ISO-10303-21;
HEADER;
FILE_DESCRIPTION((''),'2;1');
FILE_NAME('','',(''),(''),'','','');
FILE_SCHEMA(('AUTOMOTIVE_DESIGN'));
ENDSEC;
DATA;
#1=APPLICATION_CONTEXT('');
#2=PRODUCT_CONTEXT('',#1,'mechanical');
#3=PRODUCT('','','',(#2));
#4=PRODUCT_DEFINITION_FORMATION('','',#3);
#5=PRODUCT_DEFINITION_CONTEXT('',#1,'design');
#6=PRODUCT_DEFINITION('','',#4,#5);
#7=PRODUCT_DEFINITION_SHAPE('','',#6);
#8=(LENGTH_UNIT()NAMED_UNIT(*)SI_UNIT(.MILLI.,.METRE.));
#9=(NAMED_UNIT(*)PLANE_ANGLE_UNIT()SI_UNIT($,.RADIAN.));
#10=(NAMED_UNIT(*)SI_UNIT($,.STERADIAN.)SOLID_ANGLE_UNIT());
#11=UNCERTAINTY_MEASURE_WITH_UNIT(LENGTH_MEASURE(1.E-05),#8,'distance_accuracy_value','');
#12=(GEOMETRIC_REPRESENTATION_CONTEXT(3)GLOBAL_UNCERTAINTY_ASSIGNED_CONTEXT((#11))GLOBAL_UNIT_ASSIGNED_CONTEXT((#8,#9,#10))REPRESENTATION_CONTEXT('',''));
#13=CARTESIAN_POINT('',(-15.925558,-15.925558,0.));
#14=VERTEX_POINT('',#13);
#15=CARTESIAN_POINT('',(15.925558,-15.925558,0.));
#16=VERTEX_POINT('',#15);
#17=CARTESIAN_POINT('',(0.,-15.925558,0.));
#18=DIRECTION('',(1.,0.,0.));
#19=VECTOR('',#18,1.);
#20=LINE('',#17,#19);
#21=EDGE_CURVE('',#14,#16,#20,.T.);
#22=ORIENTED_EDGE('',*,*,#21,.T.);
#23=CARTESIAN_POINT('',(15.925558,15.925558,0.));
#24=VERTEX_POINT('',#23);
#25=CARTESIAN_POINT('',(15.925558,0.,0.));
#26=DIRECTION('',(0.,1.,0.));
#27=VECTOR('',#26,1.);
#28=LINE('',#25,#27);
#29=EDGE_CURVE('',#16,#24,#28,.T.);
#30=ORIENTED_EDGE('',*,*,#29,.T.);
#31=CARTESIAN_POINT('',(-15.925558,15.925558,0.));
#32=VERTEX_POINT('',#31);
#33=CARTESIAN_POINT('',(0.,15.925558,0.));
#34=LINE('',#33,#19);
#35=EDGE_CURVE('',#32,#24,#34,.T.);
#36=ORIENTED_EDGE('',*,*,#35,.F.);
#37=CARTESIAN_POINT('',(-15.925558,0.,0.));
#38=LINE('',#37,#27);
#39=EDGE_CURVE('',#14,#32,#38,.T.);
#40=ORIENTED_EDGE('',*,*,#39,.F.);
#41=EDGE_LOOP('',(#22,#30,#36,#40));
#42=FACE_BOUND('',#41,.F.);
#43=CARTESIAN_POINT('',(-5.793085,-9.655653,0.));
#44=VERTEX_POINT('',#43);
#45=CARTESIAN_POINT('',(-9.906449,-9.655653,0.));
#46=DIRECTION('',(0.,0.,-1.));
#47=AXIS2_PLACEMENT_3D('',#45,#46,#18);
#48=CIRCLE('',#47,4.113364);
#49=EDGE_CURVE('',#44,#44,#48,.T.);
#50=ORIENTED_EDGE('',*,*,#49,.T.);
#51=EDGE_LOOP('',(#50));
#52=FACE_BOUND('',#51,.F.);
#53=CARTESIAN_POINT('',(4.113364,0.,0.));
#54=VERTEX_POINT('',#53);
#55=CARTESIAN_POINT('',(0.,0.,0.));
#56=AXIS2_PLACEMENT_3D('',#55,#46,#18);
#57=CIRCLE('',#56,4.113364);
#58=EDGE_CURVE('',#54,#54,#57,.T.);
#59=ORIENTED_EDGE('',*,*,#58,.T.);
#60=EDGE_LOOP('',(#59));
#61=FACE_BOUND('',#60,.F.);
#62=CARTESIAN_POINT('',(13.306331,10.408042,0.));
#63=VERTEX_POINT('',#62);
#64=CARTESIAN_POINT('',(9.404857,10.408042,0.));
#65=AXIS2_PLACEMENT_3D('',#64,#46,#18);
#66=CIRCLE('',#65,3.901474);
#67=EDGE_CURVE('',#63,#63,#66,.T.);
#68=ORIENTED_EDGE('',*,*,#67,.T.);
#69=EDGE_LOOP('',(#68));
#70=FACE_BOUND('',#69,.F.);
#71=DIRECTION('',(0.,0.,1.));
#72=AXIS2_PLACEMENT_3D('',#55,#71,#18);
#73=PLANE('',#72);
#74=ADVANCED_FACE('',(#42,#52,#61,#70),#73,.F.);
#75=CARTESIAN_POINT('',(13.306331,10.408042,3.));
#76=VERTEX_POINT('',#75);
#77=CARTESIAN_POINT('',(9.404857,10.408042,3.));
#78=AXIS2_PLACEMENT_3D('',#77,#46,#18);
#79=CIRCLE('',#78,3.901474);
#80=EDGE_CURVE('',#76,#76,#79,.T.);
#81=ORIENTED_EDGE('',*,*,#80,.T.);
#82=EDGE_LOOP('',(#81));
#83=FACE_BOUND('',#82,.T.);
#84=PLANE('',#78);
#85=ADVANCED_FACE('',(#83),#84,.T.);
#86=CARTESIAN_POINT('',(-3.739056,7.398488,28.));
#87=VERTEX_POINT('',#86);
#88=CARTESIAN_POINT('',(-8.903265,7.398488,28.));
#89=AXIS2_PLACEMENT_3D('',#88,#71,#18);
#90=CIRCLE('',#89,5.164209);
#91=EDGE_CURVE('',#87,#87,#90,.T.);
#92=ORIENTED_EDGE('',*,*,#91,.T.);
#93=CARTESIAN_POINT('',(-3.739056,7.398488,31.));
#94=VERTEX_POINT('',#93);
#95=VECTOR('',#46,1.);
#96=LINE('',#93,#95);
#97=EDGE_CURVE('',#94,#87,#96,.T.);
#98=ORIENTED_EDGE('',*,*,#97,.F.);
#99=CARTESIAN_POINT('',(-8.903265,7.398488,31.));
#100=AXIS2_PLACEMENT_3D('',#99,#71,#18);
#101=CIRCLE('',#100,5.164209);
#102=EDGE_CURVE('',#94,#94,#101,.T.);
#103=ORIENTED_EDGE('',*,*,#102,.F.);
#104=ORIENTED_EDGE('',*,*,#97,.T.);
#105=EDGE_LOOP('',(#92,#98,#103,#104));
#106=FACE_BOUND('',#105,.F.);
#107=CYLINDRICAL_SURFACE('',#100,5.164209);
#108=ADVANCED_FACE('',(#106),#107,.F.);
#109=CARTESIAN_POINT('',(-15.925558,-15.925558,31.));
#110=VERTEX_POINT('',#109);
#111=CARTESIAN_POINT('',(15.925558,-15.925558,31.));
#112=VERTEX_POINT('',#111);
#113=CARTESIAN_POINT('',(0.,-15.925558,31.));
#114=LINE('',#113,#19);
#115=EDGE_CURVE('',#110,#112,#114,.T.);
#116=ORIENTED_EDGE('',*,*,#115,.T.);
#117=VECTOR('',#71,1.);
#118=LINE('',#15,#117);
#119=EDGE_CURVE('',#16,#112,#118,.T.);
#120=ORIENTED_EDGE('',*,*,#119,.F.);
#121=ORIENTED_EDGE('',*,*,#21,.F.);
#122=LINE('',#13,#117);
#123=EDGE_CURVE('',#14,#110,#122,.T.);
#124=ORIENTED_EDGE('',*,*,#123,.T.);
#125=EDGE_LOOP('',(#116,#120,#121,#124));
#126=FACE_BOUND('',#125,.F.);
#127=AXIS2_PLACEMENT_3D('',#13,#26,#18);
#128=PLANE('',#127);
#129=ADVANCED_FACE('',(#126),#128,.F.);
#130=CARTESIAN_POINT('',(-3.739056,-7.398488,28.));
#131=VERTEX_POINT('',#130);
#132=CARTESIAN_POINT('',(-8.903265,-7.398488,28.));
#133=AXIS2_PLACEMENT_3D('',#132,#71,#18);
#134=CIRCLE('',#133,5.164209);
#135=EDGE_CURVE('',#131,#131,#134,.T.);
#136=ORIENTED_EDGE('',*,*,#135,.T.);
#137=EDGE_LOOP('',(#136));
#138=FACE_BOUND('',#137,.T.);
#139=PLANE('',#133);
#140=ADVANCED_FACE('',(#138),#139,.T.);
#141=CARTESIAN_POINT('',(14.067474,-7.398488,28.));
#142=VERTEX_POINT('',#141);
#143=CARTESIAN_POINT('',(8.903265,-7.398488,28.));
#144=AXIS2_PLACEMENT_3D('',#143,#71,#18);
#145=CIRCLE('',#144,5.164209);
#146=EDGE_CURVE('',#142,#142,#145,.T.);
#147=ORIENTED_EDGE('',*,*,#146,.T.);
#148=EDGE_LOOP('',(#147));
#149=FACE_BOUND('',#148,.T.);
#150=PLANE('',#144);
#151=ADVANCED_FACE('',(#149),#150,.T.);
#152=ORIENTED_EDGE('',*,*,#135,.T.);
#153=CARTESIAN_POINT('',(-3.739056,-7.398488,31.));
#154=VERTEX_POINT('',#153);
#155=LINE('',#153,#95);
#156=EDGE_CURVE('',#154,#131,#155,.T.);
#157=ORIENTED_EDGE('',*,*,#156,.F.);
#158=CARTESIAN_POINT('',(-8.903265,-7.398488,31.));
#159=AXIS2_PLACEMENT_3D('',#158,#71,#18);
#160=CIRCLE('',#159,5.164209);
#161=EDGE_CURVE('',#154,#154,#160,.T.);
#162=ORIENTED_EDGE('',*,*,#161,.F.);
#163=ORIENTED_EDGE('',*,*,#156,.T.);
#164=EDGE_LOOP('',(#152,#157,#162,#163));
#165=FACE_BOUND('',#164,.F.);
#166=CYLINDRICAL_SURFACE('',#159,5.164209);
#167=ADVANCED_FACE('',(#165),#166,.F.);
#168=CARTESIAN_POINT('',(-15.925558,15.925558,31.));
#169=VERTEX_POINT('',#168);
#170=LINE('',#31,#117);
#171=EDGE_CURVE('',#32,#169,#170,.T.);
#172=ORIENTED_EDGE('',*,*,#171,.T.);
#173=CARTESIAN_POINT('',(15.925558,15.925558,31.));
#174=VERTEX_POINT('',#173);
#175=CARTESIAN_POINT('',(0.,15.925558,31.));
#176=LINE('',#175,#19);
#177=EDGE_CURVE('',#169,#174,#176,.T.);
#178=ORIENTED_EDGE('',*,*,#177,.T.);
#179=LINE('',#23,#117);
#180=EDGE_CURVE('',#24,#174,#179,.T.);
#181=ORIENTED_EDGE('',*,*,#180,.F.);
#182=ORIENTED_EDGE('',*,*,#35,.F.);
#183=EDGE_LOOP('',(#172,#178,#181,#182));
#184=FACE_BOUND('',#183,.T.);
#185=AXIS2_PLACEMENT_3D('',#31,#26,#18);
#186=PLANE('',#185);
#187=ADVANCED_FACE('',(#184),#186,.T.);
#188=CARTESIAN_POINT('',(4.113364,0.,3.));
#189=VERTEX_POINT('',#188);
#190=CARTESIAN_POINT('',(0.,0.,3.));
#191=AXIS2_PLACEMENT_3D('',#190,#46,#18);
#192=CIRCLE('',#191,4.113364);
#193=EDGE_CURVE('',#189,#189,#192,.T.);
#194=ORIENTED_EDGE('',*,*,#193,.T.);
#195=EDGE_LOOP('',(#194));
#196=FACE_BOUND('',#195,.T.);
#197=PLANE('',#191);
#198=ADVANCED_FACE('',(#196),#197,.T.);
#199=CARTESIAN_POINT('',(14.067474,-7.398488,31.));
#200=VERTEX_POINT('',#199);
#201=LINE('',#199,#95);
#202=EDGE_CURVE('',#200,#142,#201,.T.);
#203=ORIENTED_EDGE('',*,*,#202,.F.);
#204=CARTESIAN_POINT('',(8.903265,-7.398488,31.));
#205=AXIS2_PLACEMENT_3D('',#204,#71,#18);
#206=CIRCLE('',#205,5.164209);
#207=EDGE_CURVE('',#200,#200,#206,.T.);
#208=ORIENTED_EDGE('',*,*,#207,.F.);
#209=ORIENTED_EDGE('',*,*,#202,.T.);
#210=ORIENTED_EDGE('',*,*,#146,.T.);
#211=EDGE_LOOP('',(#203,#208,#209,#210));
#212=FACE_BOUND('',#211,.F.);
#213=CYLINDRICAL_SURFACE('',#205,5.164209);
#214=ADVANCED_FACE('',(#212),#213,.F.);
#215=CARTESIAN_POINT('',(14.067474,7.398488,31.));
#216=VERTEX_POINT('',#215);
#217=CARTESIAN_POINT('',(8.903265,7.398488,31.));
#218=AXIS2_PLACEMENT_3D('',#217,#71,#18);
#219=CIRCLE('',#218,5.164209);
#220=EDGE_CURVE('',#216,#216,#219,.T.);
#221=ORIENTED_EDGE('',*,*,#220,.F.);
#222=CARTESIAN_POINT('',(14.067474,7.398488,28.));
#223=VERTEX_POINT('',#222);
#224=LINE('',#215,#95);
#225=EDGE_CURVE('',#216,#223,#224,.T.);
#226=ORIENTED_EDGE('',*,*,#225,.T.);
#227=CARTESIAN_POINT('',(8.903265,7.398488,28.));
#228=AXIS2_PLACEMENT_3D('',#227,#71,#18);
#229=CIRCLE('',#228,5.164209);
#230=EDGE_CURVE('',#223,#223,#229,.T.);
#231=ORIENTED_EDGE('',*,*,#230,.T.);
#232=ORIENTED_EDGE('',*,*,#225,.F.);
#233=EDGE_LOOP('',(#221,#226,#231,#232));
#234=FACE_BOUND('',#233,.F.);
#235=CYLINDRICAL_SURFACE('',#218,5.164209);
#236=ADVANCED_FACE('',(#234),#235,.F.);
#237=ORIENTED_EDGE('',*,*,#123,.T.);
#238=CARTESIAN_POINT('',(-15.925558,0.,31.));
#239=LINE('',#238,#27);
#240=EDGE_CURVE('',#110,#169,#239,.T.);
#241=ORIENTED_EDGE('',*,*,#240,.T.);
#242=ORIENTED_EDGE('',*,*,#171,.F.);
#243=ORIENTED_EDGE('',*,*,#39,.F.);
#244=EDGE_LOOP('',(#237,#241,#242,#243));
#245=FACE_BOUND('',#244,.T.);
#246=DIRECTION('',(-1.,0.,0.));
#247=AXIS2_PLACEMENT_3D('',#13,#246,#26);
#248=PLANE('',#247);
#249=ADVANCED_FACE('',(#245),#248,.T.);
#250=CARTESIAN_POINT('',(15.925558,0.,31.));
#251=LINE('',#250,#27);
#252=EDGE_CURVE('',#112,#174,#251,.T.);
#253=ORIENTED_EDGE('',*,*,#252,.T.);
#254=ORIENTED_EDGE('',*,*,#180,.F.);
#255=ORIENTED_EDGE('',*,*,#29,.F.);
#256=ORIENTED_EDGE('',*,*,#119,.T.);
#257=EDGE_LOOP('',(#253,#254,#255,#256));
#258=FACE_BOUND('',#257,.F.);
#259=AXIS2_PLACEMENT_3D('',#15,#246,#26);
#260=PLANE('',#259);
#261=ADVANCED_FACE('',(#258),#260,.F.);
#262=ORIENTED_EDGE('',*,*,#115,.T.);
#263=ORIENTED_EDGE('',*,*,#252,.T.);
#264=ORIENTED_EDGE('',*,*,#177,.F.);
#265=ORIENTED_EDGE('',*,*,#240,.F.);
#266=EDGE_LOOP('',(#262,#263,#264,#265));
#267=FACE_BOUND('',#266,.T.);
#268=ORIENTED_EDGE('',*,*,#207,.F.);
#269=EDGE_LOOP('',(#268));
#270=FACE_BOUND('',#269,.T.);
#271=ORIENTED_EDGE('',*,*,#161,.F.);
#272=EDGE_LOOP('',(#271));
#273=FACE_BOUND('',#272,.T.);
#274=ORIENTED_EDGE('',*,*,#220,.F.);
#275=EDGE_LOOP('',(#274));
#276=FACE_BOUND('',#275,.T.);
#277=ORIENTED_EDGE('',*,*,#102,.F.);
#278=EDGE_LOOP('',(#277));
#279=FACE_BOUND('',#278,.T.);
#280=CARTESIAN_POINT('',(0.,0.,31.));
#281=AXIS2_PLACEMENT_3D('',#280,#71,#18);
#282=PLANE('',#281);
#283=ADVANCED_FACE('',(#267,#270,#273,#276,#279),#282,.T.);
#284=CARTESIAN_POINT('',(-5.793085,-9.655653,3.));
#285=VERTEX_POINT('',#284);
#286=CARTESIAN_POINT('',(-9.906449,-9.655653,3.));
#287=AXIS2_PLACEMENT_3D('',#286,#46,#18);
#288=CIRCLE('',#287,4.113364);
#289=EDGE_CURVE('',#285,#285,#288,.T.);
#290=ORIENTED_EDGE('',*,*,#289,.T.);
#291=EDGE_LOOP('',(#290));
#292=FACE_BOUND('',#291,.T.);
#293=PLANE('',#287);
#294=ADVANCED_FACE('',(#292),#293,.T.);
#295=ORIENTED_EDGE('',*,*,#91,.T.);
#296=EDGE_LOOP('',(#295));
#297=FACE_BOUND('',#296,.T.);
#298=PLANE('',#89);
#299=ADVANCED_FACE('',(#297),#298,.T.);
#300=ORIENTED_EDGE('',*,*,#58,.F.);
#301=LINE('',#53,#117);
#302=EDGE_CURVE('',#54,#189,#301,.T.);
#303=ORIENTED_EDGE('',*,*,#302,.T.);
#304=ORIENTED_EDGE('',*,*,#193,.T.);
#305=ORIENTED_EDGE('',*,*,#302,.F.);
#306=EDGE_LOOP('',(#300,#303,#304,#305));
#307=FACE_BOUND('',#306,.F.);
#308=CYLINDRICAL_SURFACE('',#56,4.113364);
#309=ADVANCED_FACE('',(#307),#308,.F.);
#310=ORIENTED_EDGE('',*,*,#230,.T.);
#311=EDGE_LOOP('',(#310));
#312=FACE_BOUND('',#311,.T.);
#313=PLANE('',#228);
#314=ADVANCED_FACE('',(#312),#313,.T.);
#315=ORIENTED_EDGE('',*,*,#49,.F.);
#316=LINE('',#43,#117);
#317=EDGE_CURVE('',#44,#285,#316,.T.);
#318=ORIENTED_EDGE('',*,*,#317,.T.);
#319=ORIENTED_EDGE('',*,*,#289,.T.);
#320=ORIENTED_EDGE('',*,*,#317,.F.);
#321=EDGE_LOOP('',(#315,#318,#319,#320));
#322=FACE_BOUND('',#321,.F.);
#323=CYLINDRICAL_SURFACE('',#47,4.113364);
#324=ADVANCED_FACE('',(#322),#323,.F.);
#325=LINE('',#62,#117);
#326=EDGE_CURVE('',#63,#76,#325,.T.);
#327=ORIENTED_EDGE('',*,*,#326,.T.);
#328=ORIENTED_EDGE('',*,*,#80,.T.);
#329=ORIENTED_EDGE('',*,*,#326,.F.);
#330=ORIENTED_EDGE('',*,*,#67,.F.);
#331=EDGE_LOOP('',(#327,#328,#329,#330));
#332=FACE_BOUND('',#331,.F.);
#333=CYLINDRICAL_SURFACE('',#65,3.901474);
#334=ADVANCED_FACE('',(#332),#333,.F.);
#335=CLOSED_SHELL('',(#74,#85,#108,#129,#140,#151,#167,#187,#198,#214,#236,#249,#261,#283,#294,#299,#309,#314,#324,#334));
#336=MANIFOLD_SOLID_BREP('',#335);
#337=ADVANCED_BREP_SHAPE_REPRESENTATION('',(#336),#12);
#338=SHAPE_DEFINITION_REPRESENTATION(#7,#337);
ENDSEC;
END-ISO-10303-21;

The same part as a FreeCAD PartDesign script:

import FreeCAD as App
import Part
import Sketcher

V = App.Vector

doc = App.newDocument("Part")
body = doc.addObject("PartDesign::Body", "Body")

# Sketch on XY plane
sketch1 = body.newObject("Sketcher::SketchObject", "Sketch")
sketch1.AttachmentSupport = (doc.getObject("XY_Plane"), [""])
sketch1.MapMode = "FlatFace"
sketch1.addGeometry([
    Part.LineSegment(V(-16, 16, 0), V(-16, -16, 0)),
    Part.LineSegment(V(-16, -16, 0), V(16, -16, 0)),
    Part.LineSegment(V(16, -16, 0), V(16, 16, 0)),
    Part.LineSegment(V(16, 16, 0), V(-16, 16, 0)),
], False)
sketch1.addConstraint([
    Sketcher.Constraint("Coincident", 0, 2, 1, 1),
    Sketcher.Constraint("Coincident", 1, 2, 2, 1),
    Sketcher.Constraint("Coincident", 2, 2, 3, 1),
    Sketcher.Constraint("Coincident", 3, 2, 0, 1),
    Sketcher.Constraint("Vertical", 0),
    Sketcher.Constraint("Horizontal", 1),
    Sketcher.Constraint("Vertical", 2),
    Sketcher.Constraint("Horizontal", 3),
    Sketcher.Constraint("Symmetric", 0, 2, 2, 2, -1, 1),
    Sketcher.Constraint("Equal", 3, 0),
    Sketcher.Constraint("DistanceX", 1, 1, 1, 2, 31.851116),
])
pad1 = body.newObject("PartDesign::Pad", "Pad")
pad1.Profile = sketch1
pad1.Length = 31

# Sketch on XY plane
sketch2 = body.newObject("Sketcher::SketchObject", "Sketch001")
sketch2.AttachmentSupport = (doc.getObject("XY_Plane"), [""])
sketch2.MapMode = "FlatFace"
sketch2.AttachmentOffset = App.Placement(V(0, 0, 31), App.Rotation())
sketch2.addGeometry([
    Part.Circle(V(-9, 7, 0), V(0, 0, 1), 5),
    Part.Circle(V(9, 7, 0), V(0, 0, 1), 5),
    Part.Circle(V(9, -7, 0), V(0, 0, 1), 5),
    Part.Circle(V(-9, -7, 0), V(0, 0, 1), 5),
], False)
sketch2.addConstraint([
    Sketcher.Constraint("Equal", 0, 1),
    Sketcher.Constraint("Equal", 1, 2),
    Sketcher.Constraint("Equal", 2, 3),
    Sketcher.Constraint("Symmetric", 0, 3, 2, 3, -1, 1),
    Sketcher.Constraint("Symmetric", 1, 3, 3, 3, -1, 1),
    Sketcher.Constraint("Symmetric", 0, 3, 1, 3, -2),
    Sketcher.Constraint("Diameter", 0, 10.328418),
    Sketcher.Constraint("DistanceY", -1, 1, 0, 3, 7.398488),
    Sketcher.Constraint("DistanceX", 0, 3, 1, 3, 17.80653),
])
pocket1 = body.newObject("PartDesign::Pocket", "Pocket")
pocket1.Profile = sketch2
pocket1.Length = 3

# Sketch on XY plane
sketch3 = body.newObject("Sketcher::SketchObject", "Sketch002")
sketch3.AttachmentSupport = (doc.getObject("XY_Plane"), [""])
sketch3.MapMode = "FlatFace"
sketch3.addGeometry([
    Part.Circle(V(-9.9, -9.7, 0), V(0, 0, 1), 4.1),
    Part.Circle(V(0, 0, 0), V(0, 0, 1), 4.1),
    Part.Circle(V(9.4, 10.4, 0), V(0, 0, 1), 3.9),
], False)
sketch3.addConstraint([
    Sketcher.Constraint("Coincident", 1, 3, -1, 1),
    Sketcher.Constraint("Equal", 0, 1),
    Sketcher.Constraint("Diameter", 0, 8.226728),
    Sketcher.Constraint("Diameter", 2, 7.802948),
    Sketcher.Constraint("DistanceX", 0, 3, -1, 1, 9.906449),
    Sketcher.Constraint("DistanceY", 0, 3, -1, 1, 9.655653),
    Sketcher.Constraint("DistanceX", -1, 1, 2, 3, 9.404857),
    Sketcher.Constraint("DistanceY", -1, 1, 2, 3, 10.408042),
])
pocket2 = body.newObject("PartDesign::Pocket", "Pocket001")
pocket2.Profile = sketch3
pocket2.Length = 3
pocket2.Reversed = True

doc.recompute()
